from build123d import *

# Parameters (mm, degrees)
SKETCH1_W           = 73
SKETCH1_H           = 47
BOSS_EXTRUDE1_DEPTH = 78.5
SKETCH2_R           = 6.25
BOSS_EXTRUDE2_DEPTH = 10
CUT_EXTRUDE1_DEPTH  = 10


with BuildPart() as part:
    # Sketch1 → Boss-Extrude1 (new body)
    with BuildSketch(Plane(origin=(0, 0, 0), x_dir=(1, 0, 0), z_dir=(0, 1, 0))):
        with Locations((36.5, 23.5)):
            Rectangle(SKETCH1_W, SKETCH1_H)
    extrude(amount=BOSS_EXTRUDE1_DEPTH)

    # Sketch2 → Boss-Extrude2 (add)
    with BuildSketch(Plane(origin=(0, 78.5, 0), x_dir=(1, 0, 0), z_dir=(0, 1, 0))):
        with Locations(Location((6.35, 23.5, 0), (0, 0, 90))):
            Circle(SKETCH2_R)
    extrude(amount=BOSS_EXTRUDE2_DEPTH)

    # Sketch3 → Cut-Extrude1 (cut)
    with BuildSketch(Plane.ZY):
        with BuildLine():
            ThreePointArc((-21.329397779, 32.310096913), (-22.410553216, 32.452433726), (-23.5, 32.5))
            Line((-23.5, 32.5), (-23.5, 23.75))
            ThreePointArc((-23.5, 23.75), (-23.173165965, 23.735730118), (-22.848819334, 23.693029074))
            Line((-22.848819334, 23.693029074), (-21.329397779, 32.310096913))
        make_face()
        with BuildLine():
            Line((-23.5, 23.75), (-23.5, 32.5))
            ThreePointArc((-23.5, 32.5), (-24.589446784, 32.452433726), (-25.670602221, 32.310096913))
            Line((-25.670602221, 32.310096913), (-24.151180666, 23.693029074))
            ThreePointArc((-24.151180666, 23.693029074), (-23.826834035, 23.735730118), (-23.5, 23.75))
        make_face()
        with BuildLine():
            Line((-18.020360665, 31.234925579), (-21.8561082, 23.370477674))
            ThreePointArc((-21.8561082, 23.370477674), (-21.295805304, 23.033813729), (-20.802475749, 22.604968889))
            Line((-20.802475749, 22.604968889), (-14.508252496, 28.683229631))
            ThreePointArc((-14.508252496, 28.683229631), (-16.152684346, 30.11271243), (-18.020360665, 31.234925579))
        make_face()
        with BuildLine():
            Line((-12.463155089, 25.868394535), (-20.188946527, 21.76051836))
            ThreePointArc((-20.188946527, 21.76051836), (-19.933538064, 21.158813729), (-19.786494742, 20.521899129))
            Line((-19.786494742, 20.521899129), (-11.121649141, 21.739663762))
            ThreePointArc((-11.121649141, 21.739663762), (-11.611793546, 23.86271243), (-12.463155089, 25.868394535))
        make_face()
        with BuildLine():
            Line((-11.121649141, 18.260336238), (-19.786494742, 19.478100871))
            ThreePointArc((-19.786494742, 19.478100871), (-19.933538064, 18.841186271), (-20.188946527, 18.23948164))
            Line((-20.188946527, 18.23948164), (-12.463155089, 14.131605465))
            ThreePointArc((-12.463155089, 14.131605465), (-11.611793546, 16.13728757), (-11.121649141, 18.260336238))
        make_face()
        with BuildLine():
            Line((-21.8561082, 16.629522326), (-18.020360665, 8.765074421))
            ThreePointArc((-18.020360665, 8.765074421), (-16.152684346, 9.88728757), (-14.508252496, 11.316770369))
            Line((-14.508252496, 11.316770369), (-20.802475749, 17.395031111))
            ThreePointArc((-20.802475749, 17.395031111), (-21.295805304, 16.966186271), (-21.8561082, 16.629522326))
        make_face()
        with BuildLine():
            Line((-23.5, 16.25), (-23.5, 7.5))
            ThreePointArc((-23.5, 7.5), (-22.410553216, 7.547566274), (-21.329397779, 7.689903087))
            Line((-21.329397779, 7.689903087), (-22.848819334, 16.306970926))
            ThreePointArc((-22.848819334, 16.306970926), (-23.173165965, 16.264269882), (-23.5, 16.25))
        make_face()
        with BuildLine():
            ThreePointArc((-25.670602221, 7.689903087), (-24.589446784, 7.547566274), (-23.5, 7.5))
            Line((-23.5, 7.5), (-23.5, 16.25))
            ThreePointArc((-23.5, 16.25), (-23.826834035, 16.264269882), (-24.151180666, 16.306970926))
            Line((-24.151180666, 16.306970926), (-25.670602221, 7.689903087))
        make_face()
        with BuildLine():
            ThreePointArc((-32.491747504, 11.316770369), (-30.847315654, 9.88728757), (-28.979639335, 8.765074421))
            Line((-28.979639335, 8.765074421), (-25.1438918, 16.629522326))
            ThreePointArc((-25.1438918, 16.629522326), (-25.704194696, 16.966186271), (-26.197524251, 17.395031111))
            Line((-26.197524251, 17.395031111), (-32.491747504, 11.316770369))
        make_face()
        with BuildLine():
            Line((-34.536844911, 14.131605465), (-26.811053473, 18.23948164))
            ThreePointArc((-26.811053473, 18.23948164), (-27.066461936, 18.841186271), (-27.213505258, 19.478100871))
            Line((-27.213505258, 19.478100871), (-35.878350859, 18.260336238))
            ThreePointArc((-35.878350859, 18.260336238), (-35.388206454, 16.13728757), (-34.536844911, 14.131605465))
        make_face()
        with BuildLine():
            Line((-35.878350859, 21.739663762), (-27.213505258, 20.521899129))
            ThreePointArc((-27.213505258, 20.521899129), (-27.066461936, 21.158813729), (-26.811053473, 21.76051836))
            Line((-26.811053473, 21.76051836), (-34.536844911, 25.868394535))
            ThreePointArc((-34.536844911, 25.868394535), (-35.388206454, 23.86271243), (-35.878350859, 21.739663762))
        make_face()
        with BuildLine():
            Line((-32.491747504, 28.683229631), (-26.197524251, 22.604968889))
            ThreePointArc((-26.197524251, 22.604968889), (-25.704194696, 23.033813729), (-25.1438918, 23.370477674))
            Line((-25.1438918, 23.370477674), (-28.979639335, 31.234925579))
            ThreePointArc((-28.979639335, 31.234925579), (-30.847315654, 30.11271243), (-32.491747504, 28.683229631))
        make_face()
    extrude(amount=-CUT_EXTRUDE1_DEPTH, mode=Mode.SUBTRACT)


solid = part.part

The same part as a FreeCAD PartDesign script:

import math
import FreeCAD as App
import Part
import Sketcher
from FreeCAD import Vector
Q = App.Units.Quantity


def add_polygon(sketch, points):
    """Adds a closed chain of lines whose ends are joined by coincident constraints."""
    first, n = sketch.GeometryCount, len(points)
    for a, b in zip(points, points[1:] + points[:1]):
        sketch.addGeometry(Part.LineSegment(App.Vector(*a, 0), App.Vector(*b, 0)), False)
    for i in range(n):
        sketch.addConstraint(Sketcher.Constraint("Coincident", first + i, 2, first + (i + 1) % n, 1))

doc = App.newDocument("Part")
body = doc.addObject("PartDesign::Body", "Body")

# Sketch on XZ plane
sketch1 = body.newObject("Sketcher::SketchObject", "Sketch")
sketch1.AttachmentSupport = (doc.getObject("XZ_Plane"), [""])
sketch1.MapMode = "FlatFace"
add_polygon(sketch1, [(0, -47), (0, 0), (73, 0), (73, -47)])  # lines 0-3
sketch1.addConstraint(Sketcher.Constraint("Vertical", 0))
sketch1.addConstraint(Sketcher.Constraint("Horizontal", 1))
sketch1.addConstraint(Sketcher.Constraint("Vertical", 2))
sketch1.addConstraint(Sketcher.Constraint("Horizontal", 3))
sketch1.addConstraint(Sketcher.Constraint("Coincident", 0, 2, -1, 1))
sketch1.addConstraint(Sketcher.Constraint("DistanceX", 1, 1, 1, 2, Q("73 mm")))
sketch1.addConstraint(Sketcher.Constraint("DistanceY", 0, 1, 0, 2, Q("47 mm")))
pad1 = body.newObject("PartDesign::Pad", "Pad")
pad1.Profile = sketch1
pad1.Length = 78.5
pad1.Reversed = True

# Sketch on XZ plane
sketch2 = body.newObject("Sketcher::SketchObject", "Sketch001")
sketch2.AttachmentSupport = (doc.getObject("XZ_Plane"), [""])
sketch2.MapMode = "FlatFace"
sketch2.AttachmentOffset = App.Placement(Vector(0, 0, -78.5), App.Rotation())
sketch2.addGeometry(Part.Circle(Vector(6.35, -23.5, 0), Vector(0, 0, 1), 6.25), False)
sketch2.addConstraint(Sketcher.Constraint("Diameter", 0, Q("12.5 mm")))
sketch2.addConstraint(Sketcher.Constraint("DistanceY", 0, 3, -1, 1, Q("23.5 mm")))
sketch2.addConstraint(Sketcher.Constraint("DistanceX", -1, 1, 0, 3, Q("6.35 mm")))
pad2 = body.newObject("PartDesign::Pad", "Pad001")
pad2.Profile = sketch2
pad2.Length = 10
pad2.Reversed = True

# Sketch on YZ plane
sketch3 = body.newObject("Sketcher::SketchObject", "Sketch002")
sketch3.AttachmentSupport = (doc.getObject("YZ_Plane"), [""])
sketch3.MapMode = "FlatFace"
sketch3.addGeometry(Part.ArcOfCircle(Part.Circle(Vector(20, -23.5, 0), Vector(0, 0, 1), 12.5), math.radians(0), math.radians(10)), False)
sketch3.addGeometry(Part.ArcOfCircle(Part.Circle(Vector(20, -23.5, 0), Vector(0, 0, 1), 12.5), math.radians(-10), math.radians(0)), False)
sketch3.addGeometry(Part.LineSegment(Vector(32.310097, -25.670602, 0), Vector(23.693029, -24.151181, 0)), False)
sketch3.addGeometry(Part.ArcOfCircle(Part.Circle(Vector(20, -23.5, 0), Vector(0, 0, 1), 3.75), math.radians(-10), math.radians(0)), False)
sketch3.addGeometry(Part.ArcOfCircle(Part.Circle(Vector(20, -23.5, 0), Vector(0, 0, 1), 3.75), math.radians(0), math.radians(10)), False)
sketch3.addGeometry(Part.LineSegment(Vector(23.693029, -22.848819, 0), Vector(32.310097, -21.329398, 0)), False)
sketch3.addGeometry(Part.LineSegment(Vector(31.234926, -18.020361, 0), Vector(23.370478, -21.856108, 0)), False)
sketch3.addGeometry(Part.ArcOfCircle(Part.Circle(Vector(20, -23.5, 0), Vector(0, 0, 1), 3.75), math.radians(26), math.radians(46)), False)
sketch3.addGeometry(Part.LineSegment(Vector(22.604969, -20.802476, 0), Vector(28.68323, -14.508252, 0)), False)
sketch3.addGeometry(Part.ArcOfCircle(Part.Circle(Vector(20, -23.5, 0), Vector(0, 0, 1), 12.5), math.radians(26), math.radians(46)), False)
sketch3.addGeometry(Part.LineSegment(Vector(25.868395, -12.463155, 0), Vector(21.760518, -20.188947, 0)), False)
sketch3.addGeometry(Part.ArcOfCircle(Part.Circle(Vector(20, -23.5, 0), Vector(0, 0, 1), 3.75), math.radians(62), math.radians(82)), False)
sketch3.addGeometry(Part.LineSegment(Vector(20.521899, -19.786495, 0), Vector(21.739664, -11.121649, 0)), False)
sketch3.addGeometry(Part.ArcOfCircle(Part.Circle(Vector(20, -23.5, 0), Vector(0, 0, 1), 12.5), math.radians(62), math.radians(82)), False)
sketch3.addGeometry(Part.LineSegment(Vector(18.260336, -11.121649, 0), Vector(19.478101, -19.786495, 0)), False)
sketch3.addGeometry(Part.ArcOfCircle(Part.Circle(Vector(20, -23.5, 0), Vector(0, 0, 1), 3.75), math.radians(98), math.radians(118)), False)
sketch3.addGeometry(Part.LineSegment(Vector(18.239482, -20.188947, 0), Vector(14.131605, -12.463155, 0)), False)
sketch3.addGeometry(Part.ArcOfCircle(Part.Circle(Vector(20, -23.5, 0), Vector(0, 0, 1), 12.5), math.radians(98), math.radians(118)), False)
sketch3.addGeometry(Part.LineSegment(Vector(16.629522, -21.856108, 0), Vector(8.765074, -18.020361, 0)), False)
sketch3.addGeometry(Part.ArcOfCircle(Part.Circle(Vector(20, -23.5, 0), Vector(0, 0, 1), 12.5), math.radians(134), math.radians(154)), False)
sketch3.addGeometry(Part.LineSegment(Vector(11.31677, -14.508252, 0), Vector(17.395031, -20.802476, 0)), False)
sketch3.addGeometry(Part.ArcOfCircle(Part.Circle(Vector(20, -23.5, 0), Vector(0, 0, 1), 3.75), math.radians(134), math.radians(154)), False)
sketch3.addGeometry(Part.ArcOfCircle(Part.Circle(Vector(20, -23.5, 0), Vector(0, 0, 1), 12.5), math.radians(170), math.radians(180)), False)
sketch3.addGeometry(Part.LineSegment(Vector(7.689903, -21.329398, 0), Vector(16.306971, -22.848819, 0)), False)
sketch3.addGeometry(Part.ArcOfCircle(Part.Circle(Vector(20, -23.5, 0), Vector(0, 0, 1), 3.75), math.radians(170), math.radians(180)), False)
sketch3.addGeometry(Part.ArcOfCircle(Part.Circle(Vector(20, -23.5, 0), Vector(0, 0, 1), 3.75), math.radians(180), math.radians(190)), False)
sketch3.addGeometry(Part.LineSegment(Vector(16.306971, -24.151181, 0), Vector(7.689903, -25.670602, 0)), False)
sketch3.addGeometry(Part.ArcOfCircle(Part.Circle(Vector(20, -23.5, 0), Vector(0, 0, 1), 12.5), math.radians(-180), math.radians(-170)), False)
sketch3.addGeometry(Part.ArcOfCircle(Part.Circle(Vector(20, -23.5, 0), Vector(0, 0, 1), 12.5), math.radians(-154), math.radians(-134)), False)
sketch3.addGeometry(Part.LineSegment(Vector(8.765074, -28.979639, 0), Vector(16.629522, -25.143892, 0)), False)
sketch3.addGeometry(Part.ArcOfCircle(Part.Circle(Vector(20, -23.5, 0), Vector(0, 0, 1), 3.75), math.radians(-154), math.radians(-134)), False)
sketch3.addGeometry(Part.LineSegment(Vector(17.395031, -26.197524, 0), Vector(11.31677, -32.491748, 0)), False)
sketch3.addGeometry(Part.LineSegment(Vector(14.131605, -34.536845, 0), Vector(18.239482, -26.811053, 0)), False)
sketch3.addGeometry(Part.ArcOfCircle(Part.Circle(Vector(20, -23.5, 0), Vector(0, 0, 1), 3.75), math.radians(-118), math.radians(-98)), False)
sketch3.addGeometry(Part.LineSegment(Vector(19.478101, -27.213505, 0), Vector(18.260336, -35.878351, 0)), False)
sketch3.addGeometry(Part.ArcOfCircle(Part.Circle(Vector(20, -23.5, 0), Vector(0, 0, 1), 12.5), math.radians(-118), math.radians(-98)), False)
sketch3.addGeometry(Part.LineSegment(Vector(21.739664, -35.878351, 0), Vector(20.521899, -27.213505, 0)), False)
sketch3.addGeometry(Part.ArcOfCircle(Part.Circle(Vector(20, -23.5, 0), Vector(0, 0, 1), 3.75), math.radians(-82), math.radians(-62)), False)
sketch3.addGeometry(Part.LineSegment(Vector(21.760518, -26.811053, 0), Vector(25.868395, -34.536845, 0)), False)
sketch3.addGeometry(Part.ArcOfCircle(Part.Circle(Vector(20, -23.5, 0), Vector(0, 0, 1), 12.5), math.radians(-82), math.radians(-62)), False)
sketch3.addGeometry(Part.LineSegment(Vector(28.68323, -32.491748, 0), Vector(22.604969, -26.197524, 0)), False)
sketch3.addGeometry(Part.ArcOfCircle(Part.Circle(Vector(20, -23.5, 0), Vector(0, 0, 1), 3.75), math.radians(-46), math.radians(-26)), False)
sketch3.addGeometry(Part.LineSegment(Vector(23.370478, -25.143892, 0), Vector(31.234926, -28.979639, 0)), False)
sketch3.addGeometry(Part.ArcOfCircle(Part.Circle(Vector(20, -23.5, 0), Vector(0, 0, 1), 12.5), math.radians(-46), math.radians(-26)), False)
sketch3.addConstraint(Sketcher.Constraint("Tangent", 0, 1, 1, 2))
sketch3.addConstraint(Sketcher.Constraint("Coincident", 1, 1, 2, 1))
sketch3.addConstraint(Sketcher.Constraint("Coincident", 2, 2, 3, 1))
sketch3.addConstraint(Sketcher.Constraint("Tangent", 3, 2, 4, 1))
sketch3.addConstraint(Sketcher.Constraint("Coincident", 4, 2, 5, 1))
sketch3.addConstraint(Sketcher.Constraint("Coincident", 5, 2, 0, 2))
sketch3.addConstraint(Sketcher.Constraint("Coincident", 6, 2, 7, 1))
sketch3.addConstraint(Sketcher.Constraint("Coincident", 7, 2, 8, 1))
sketch3.addConstraint(Sketcher.Constraint("Coincident", 8, 2, 9, 2))
sketch3.addConstraint(Sketcher.Constraint("Coincident", 9, 1, 6, 1))
sketch3.addConstraint(Sketcher.Constraint("Coincident", 10, 2, 11, 1))
sketch3.addConstraint(Sketcher.Constraint("Coincident", 11, 2, 12, 1))
sketch3.addConstraint(Sketcher.Constraint("Coincident", 12, 2, 13, 2))
sketch3.addConstraint(Sketcher.Constraint("Coincident", 13, 1, 10, 1))
sketch3.addConstraint(Sketcher.Constraint("Coincident", 14, 2, 15, 1))
sketch3.addConstraint(Sketcher.Constraint("Coincident", 15, 2, 16, 1))
sketch3.addConstraint(Sketcher.Constraint("Coincident", 16, 2, 17, 2))
sketch3.addConstraint(Sketcher.Constraint("Coincident", 17, 1, 14, 1))
sketch3.addConstraint(Sketcher.Constraint("Coincident", 18, 2, 19, 2))
sketch3.addConstraint(Sketcher.Constraint("Coincident", 19, 1, 20, 1))
sketch3.addConstraint(Sketcher.Constraint("Coincident", 20, 2, 21, 1))
sketch3.addConstraint(Sketcher.Constraint("Coincident", 21, 2, 18, 1))
sketch3.addConstraint(Sketcher.Constraint("Coincident", 22, 1, 23, 1))
sketch3.addConstraint(Sketcher.Constraint("Coincident", 23, 2, 24, 1))
sketch3.addConstraint(Sketcher.Constraint("Tangent", 24, 2, 25, 1))
sketch3.addConstraint(Sketcher.Constraint("Coincident", 25, 2, 26, 1))
sketch3.addConstraint(Sketcher.Constraint("Coincident", 26, 2, 27, 2))
sketch3.addConstraint(Sketcher.Constraint("Tangent", 27, 1, 22, 2))
sketch3.addConstraint(Sketcher.Constraint("Coincident", 28, 1, 29, 1))
sketch3.addConstraint(Sketcher.Constraint("Coincident", 29, 2, 30, 1))
sketch3.addConstraint(Sketcher.Constraint("Coincident", 30, 2, 31, 1))
sketch3.addConstraint(Sketcher.Constraint("Coincident", 31, 2, 28, 2))
sketch3.addConstraint(Sketcher.Constraint("Coincident", 32, 2, 33, 1))
sketch3.addConstraint(Sketcher.Constraint("Coincident", 33, 2, 34, 1))
sketch3.addConstraint(Sketcher.Constraint("Coincident", 34, 2, 35, 2))
sketch3.addConstraint(Sketcher.Constraint("Coincident", 35, 1, 32, 1))
sketch3.addConstraint(Sketcher.Constraint("Coincident", 36, 2, 37, 1))
sketch3.addConstraint(Sketcher.Constraint("Coincident", 37, 2, 38, 1))
sketch3.addConstraint(Sketcher.Constraint("Coincident", 38, 2, 39, 2))
sketch3.addConstraint(Sketcher.Constraint("Coincident", 39, 1, 36, 1))
sketch3.addConstraint(Sketcher.Constraint("Coincident", 40, 2, 41, 1))
sketch3.addConstraint(Sketcher.Constraint("Coincident", 41, 2, 42, 1))
sketch3.addConstraint(Sketcher.Constraint("Coincident", 42, 2, 43, 2))
sketch3.addConstraint(Sketcher.Constraint("Coincident", 43, 1, 40, 1))
sketch3.addConstraint(Sketcher.Constraint("Coincident", 3, 3, 0, 3))
sketch3.addConstraint(Sketcher.Constraint("Coincident", 7, 3, 0, 3))
sketch3.addConstraint(Sketcher.Constraint("Coincident", 9, 3, 0, 3))
sketch3.addConstraint(Sketcher.Constraint("Coincident", 11, 3, 0, 3))
sketch3.addConstraint(Sketcher.Constraint("Coincident", 13, 3, 0, 3))
sketch3.addConstraint(Sketcher.Constraint("Coincident", 15, 3, 0, 3))
sketch3.addConstraint(Sketcher.Constraint("Coincident", 17, 3, 0, 3))
sketch3.addConstraint(Sketcher.Constraint("Coincident", 19, 3, 0, 3))
sketch3.addConstraint(Sketcher.Constraint("Coincident", 21, 3, 0, 3))
sketch3.addConstraint(Sketcher.Constraint("Coincident", 22, 3, 0, 3))
sketch3.addConstraint(Sketcher.Constraint("Coincident", 24, 3, 0, 3))
sketch3.addConstraint(Sketcher.Constraint("Coincident", 28, 3, 0, 3))
sketch3.addConstraint(Sketcher.Constraint("Coincident", 30, 3, 0, 3))
sketch3.addConstraint(Sketcher.Constraint("Coincident", 33, 3, 0, 3))
sketch3.addConstraint(Sketcher.Constraint("Coincident", 35, 3, 0, 3))
sketch3.addConstraint(Sketcher.Constraint("Coincident", 37, 3, 0, 3))
sketch3.addConstraint(Sketcher.Constraint("Coincident", 39, 3, 0, 3))
sketch3.addConstraint(Sketcher.Constraint("Coincident", 41, 3, 0, 3))
sketch3.addConstraint(Sketcher.Constraint("Coincident", 43, 3, 0, 3))
sketch3.addConstraint(Sketcher.Constraint("Equal", 0, 1))
sketch3.addConstraint(Sketcher.Constraint("Equal", 3, 4))
sketch3.addConstraint(Sketcher.Constraint("Equal", 4, 7))
sketch3.addConstraint(Sketcher.Constraint("Equal", 1, 9))
sketch3.addConstraint(Sketcher.Constraint("Equal", 7, 11))
sketch3.addConstraint(Sketcher.Constraint("Equal", 9, 13))
sketch3.addConstraint(Sketcher.Constraint("Equal", 11, 15))
sketch3.addConstraint(Sketcher.Constraint("Equal", 13, 17))
sketch3.addConstraint(Sketcher.Constraint("Equal", 17, 19))
sketch3.addConstraint(Sketcher.Constraint("Equal", 15, 21))
sketch3.addConstraint(Sketcher.Constraint("Equal", 19, 22))
sketch3.addConstraint(Sketcher.Constraint("Equal", 21, 24))
sketch3.addConstraint(Sketcher.Constraint("Equal", 24, 25))
sketch3.addConstraint(Sketcher.Constraint("Equal", 22, 27))
sketch3.addConstraint(Sketcher.Constraint("Equal", 27, 28))
sketch3.addConstraint(Sketcher.Constraint("Equal", 25, 30))
sketch3.addConstraint(Sketcher.Constraint("Equal", 30, 33))
sketch3.addConstraint(Sketcher.Constraint("Equal", 28, 35))
sketch3.addConstraint(Sketcher.Constraint("Equal", 33, 37))
sketch3.addConstraint(Sketcher.Constraint("Equal", 35, 39))
sketch3.addConstraint(Sketcher.Constraint("Equal", 37, 41))
sketch3.addConstraint(Sketcher.Constraint("Equal", 39, 43))
sketch3.addConstraint(Sketcher.Constraint("Parallel", 2, 23))
sketch3.addConstraint(Sketcher.Constraint("Parallel", 5, 26))
sketch3.addConstraint(Sketcher.Constraint("Parallel", 6, 29))
sketch3.addConstraint(Sketcher.Constraint("Parallel", 8, 31))
sketch3.addConstraint(Sketcher.Constraint("Parallel", 10, 32))
sketch3.addConstraint(Sketcher.Constraint("Parallel", 12, 34))
sketch3.addConstraint(Sketcher.Constraint("Parallel", 14, 36))
sketch3.addConstraint(Sketcher.Constraint("Parallel", 16, 38))
sketch3.addConstraint(Sketcher.Constraint("Parallel", 20, 40))
sketch3.addConstraint(Sketcher.Constraint("Parallel", 18, 42))
sketch3.addConstraint(Sketcher.Constraint("Horizontal", 43, 3, 0, 1))
sketch3.addConstraint(Sketcher.Constraint("Horizontal", 0, 1, 3, 2))
sketch3.addConstraint(Sketcher.Constraint("Horizontal", 11, 2, 14, 2))
sketch3.addConstraint(Sketcher.Constraint("Horizontal", 10, 2, 15, 2))
sketch3.addConstraint(Sketcher.Constraint("Horizontal", 13, 1, 16, 2))
sketch3.addConstraint(Sketcher.Constraint("Horizontal", 12, 2, 17, 1))
sketch3.addConstraint(Sketcher.Constraint("Horizontal", 9, 1, 18, 2))
sketch3.addConstraint(Sketcher.Constraint("Horizontal", 8, 2, 19, 1))
sketch3.addConstraint(Sketcher.Constraint("Horizontal", 7, 2, 20, 2))
sketch3.addConstraint(Sketcher.Constraint("Horizontal", 6, 2, 21, 2))
sketch3.addConstraint(Sketcher.Constraint("Horizontal", 5, 2, 22, 1))
sketch3.addConstraint(Sketcher.Constraint("Horizontal", 4, 2, 23, 2))
sketch3.addConstraint(Sketcher.Constraint("Horizontal", 3, 2, 24, 2))
sketch3.addConstraint(Sketcher.Constraint("Horizontal", 2, 2, 25, 2))
sketch3.addConstraint(Sketcher.Constraint("Horizontal", 24, 2, 27, 1))
sketch3.addConstraint(Sketcher.Constraint("Horizontal", 33, 2, 36, 2))
sketch3.addConstraint(Sketcher.Constraint("Horizontal", 32, 2, 37, 2))
sketch3.addConstraint(Sketcher.Constraint("Horizontal", 30, 2, 40, 2))
sketch3.addConstraint(Sketcher.Constraint("Horizontal", 29, 2, 41, 2))
sketch3.addConstraint(Sketcher.Constraint("Vertical", 2, 2, 4, 2))
sketch3.addConstraint(Sketcher.Constraint("Vertical", 18, 2, 28, 1))
sketch3.addConstraint(Sketcher.Constraint("Vertical", 20, 2, 30, 2))
sketch3.addConstraint(Sketcher.Constraint("Vertical", 15, 2, 32, 2))
sketch3.addConstraint(Sketcher.Constraint("Vertical", 14, 2, 33, 2))
sketch3.addConstraint(Sketcher.Constraint("Radius", 0, Q("12.5 mm")))
sketch3.addConstraint(Sketcher.Constraint("Angle", 2, Q("170 deg")))
sketch3.addConstraint(Sketcher.Constraint("Angle", 6, Q("-154 deg")))
sketch3.addConstraint(Sketcher.Constraint("Angle", 8, Q("46 deg")))
sketch3.addConstraint(Sketcher.Constraint("Angle", 10, Q("-118 deg")))
sketch3.addConstraint(Sketcher.Constraint("Angle", 12, Q("82 deg")))
sketch3.addConstraint(Sketcher.Constraint("Radius", 3, Q("3.75 mm")))
sketch3.addConstraint(Sketcher.Constraint("DistanceX", -1, 1, 0, 3, Q("20 mm")))
sketch3.addConstraint(Sketcher.Constraint("DistanceY", 0, 3, -1, 1, Q("23.5 mm")))
sketch3.addConstraint(Sketcher.Constraint("DistanceX", -1, 1, 11, 2, Q("20.521899 mm")))
sketch3.addConstraint(Sketcher.Constraint("DistanceX", -1, 1, 2, 2, Q("23.693029 mm")))
sketch3.addConstraint(Sketcher.Constraint("DistanceY", 6, 2, -1, 1, Q("21.856108 mm")))
sketch3.addConstraint(Sketcher.Constraint("DistanceX", -1, 1, 7, 2, Q("22.604969 mm")))
sketch3.addConstraint(Sketcher.Constraint("DistanceX", -1, 1, 10, 2, Q("21.760518 mm")))
pocket1 = body.newObject("PartDesign::Pocket", "Pocket")
pocket1.Profile = sketch3
pocket1.Length = 10
pocket1.Reversed = True

doc.recompute()
